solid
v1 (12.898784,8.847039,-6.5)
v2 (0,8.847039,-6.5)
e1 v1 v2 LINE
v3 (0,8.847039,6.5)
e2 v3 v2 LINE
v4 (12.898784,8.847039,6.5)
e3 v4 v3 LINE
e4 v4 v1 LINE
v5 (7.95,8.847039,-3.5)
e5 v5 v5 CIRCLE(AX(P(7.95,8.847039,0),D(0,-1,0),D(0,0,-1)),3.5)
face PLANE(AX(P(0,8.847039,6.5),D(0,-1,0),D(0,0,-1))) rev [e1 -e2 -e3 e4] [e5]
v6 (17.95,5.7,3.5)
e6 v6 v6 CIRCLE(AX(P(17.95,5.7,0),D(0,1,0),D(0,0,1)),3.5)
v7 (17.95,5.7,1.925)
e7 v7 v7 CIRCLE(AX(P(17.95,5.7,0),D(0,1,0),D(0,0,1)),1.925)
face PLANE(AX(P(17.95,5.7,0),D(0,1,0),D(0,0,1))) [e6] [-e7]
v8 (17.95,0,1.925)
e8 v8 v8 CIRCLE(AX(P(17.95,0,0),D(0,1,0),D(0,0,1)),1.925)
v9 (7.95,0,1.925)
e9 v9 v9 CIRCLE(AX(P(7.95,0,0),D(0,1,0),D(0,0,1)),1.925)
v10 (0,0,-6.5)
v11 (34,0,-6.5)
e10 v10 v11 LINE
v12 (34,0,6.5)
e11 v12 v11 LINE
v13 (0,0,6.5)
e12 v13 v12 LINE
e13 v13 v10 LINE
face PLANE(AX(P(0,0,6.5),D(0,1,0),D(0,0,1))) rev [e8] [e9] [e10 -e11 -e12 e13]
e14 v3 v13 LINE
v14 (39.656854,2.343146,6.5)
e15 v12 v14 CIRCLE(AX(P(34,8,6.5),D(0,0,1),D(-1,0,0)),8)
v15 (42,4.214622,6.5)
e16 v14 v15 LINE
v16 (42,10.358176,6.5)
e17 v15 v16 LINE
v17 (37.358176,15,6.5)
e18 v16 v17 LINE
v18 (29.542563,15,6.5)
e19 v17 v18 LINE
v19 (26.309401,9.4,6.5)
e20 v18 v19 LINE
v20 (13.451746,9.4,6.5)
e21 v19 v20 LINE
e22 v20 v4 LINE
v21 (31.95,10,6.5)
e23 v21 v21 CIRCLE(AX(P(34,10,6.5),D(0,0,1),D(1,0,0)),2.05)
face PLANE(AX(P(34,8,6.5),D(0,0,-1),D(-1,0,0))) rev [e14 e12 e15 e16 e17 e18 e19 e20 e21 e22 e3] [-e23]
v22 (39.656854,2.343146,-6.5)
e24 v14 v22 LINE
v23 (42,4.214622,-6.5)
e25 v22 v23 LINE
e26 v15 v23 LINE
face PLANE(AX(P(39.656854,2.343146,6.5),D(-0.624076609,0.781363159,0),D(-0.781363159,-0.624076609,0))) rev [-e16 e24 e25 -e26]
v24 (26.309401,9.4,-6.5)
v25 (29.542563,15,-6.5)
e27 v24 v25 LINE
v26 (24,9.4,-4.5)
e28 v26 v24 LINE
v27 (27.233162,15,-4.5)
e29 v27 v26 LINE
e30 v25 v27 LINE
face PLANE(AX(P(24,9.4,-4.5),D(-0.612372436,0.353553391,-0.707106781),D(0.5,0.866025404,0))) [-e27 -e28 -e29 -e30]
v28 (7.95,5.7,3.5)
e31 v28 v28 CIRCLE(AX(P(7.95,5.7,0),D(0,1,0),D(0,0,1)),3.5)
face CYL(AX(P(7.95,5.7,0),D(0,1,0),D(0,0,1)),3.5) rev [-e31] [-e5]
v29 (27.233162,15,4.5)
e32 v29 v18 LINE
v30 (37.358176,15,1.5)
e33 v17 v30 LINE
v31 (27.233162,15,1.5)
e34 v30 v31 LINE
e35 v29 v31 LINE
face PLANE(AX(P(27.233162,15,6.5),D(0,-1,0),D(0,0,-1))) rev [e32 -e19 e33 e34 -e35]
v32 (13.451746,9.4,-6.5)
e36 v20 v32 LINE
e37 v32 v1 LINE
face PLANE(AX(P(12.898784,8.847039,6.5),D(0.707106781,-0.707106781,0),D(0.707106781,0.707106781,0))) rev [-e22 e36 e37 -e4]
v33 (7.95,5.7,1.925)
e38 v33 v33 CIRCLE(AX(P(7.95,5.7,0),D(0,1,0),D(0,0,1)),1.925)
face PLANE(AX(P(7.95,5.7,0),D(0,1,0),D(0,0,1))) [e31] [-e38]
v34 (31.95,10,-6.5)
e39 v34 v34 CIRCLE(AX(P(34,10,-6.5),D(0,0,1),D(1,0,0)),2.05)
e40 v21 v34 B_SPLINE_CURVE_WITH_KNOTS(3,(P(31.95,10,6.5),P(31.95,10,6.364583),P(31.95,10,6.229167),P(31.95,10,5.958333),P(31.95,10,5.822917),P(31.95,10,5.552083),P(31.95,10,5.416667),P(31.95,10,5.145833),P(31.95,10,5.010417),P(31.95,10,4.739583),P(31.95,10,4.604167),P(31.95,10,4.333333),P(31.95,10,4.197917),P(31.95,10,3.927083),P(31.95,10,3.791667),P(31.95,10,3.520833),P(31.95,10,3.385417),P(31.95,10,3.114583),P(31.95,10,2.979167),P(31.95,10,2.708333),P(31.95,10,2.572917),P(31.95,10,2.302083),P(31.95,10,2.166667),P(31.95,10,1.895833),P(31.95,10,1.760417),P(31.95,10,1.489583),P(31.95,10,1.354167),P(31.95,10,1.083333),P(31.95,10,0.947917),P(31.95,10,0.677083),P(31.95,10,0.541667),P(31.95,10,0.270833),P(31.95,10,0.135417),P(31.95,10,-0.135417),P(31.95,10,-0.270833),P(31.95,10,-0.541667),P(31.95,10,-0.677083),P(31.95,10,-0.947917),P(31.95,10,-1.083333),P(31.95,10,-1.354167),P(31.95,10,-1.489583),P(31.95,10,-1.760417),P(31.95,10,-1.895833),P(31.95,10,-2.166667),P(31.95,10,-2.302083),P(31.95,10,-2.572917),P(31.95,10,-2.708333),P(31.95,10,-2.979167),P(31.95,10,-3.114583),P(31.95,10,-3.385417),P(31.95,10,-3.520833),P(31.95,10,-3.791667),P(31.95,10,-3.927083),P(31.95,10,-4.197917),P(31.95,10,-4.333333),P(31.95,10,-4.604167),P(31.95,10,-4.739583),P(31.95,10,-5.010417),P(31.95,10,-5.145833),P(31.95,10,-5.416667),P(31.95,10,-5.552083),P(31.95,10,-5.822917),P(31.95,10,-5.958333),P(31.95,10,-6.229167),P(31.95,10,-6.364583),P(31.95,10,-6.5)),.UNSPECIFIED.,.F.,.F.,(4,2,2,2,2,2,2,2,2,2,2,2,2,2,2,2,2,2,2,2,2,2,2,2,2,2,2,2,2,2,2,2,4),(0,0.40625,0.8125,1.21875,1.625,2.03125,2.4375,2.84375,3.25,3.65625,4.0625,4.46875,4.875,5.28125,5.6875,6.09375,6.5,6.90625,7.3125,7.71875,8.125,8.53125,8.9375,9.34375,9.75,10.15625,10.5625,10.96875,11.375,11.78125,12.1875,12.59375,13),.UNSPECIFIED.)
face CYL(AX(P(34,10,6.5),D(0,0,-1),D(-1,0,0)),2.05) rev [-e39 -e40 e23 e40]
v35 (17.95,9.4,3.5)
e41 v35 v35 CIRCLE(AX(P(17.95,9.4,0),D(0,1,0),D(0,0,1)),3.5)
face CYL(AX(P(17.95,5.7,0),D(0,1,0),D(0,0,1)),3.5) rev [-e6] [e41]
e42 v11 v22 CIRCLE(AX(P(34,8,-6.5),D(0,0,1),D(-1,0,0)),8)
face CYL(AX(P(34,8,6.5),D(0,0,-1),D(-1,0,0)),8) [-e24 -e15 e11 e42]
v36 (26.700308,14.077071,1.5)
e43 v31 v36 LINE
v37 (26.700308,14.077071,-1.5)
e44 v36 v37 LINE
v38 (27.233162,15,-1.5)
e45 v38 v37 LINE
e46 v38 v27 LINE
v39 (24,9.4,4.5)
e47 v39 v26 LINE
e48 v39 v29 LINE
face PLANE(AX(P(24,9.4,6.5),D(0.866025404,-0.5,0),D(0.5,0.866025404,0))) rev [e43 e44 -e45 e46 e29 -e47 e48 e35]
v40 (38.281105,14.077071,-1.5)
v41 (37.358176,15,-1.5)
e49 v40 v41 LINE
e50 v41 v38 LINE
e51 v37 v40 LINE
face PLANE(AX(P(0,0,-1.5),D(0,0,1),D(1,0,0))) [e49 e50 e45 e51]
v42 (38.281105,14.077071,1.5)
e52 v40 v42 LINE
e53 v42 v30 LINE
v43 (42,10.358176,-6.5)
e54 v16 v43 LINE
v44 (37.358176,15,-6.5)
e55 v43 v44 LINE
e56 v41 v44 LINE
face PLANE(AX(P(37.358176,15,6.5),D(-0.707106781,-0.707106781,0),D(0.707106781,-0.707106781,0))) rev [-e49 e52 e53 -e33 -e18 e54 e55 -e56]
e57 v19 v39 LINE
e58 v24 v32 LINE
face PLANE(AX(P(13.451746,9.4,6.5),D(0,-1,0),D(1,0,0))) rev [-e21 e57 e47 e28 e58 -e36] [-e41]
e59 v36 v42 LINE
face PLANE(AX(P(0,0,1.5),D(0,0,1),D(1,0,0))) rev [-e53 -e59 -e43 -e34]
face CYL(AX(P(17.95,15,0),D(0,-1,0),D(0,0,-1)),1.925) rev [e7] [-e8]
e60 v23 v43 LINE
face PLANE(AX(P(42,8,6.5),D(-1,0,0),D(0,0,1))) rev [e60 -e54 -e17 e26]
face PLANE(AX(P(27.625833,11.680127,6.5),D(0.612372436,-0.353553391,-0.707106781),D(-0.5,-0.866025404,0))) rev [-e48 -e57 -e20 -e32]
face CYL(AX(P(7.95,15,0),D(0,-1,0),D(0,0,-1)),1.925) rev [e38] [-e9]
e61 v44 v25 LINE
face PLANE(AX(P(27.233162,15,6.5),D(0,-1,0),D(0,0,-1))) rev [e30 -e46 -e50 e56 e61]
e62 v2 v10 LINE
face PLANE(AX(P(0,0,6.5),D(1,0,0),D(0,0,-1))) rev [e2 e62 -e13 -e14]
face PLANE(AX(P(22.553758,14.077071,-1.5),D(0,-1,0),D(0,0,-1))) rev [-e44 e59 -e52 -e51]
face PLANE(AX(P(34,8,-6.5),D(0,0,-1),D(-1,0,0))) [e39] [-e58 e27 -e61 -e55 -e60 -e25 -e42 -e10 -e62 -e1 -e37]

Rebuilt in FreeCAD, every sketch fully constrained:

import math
import FreeCAD as App
import Part
import Sketcher
from FreeCAD import Vector
Q = App.Units.Quantity


def edges_at(feature, points):
    """Names of the edges that pass closest to the given points."""
    edges = feature.Shape.Edges
    near = lambda p: min(range(len(edges)), key=lambda i: edges[i].distToShape(Part.Vertex(*p))[0])
    return sorted({f"Edge{near(p) + 1}" for p in points})

doc = App.newDocument("Part")
body = doc.addObject("PartDesign::Body", "Body")

sketch1 = doc.addObject("Sketcher::SketchObject", "Sketch")
body.addObject(sketch1)
sketch1.AttachmentSupport = (doc.XY_Plane, [""])
sketch1.MapMode = "FlatFace"
sketch1.addGeometry(Part.LineSegment(Vector(27.2, 15, 0), Vector(24, 9.4, 0)), False)
sketch1.addGeometry(Part.LineSegment(Vector(24, 9.4, 0), Vector(13.5, 9.4, 0)), False)
sketch1.addGeometry(Part.LineSegment(Vector(13.5, 9.4, 0), Vector(12.9, 8.8, 0)), False)
sketch1.addGeometry(Part.LineSegment(Vector(12.9, 8.8, 0), Vector(0, 8.8, 0)), False)
sketch1.addGeometry(Part.LineSegment(Vector(0, 8.8, 0), Vector(0, 0, 0)), False)
sketch1.addGeometry(Part.LineSegment(Vector(0, 0, 0), Vector(34, 0, 0)), False)
sketch1.addGeometry(Part.ArcOfCircle(Part.Circle(Vector(34, 8, 0), Vector(0, 0, 1), 8), math.radians(-90), math.radians(-45)), False)
sketch1.addGeometry(Part.LineSegment(Vector(39.7, 2.3, 0), Vector(42, 4.2, 0)), False)
sketch1.addGeometry(Part.LineSegment(Vector(42, 4.2, 0), Vector(42, 10.4, 0)), False)
sketch1.addGeometry(Part.LineSegment(Vector(42, 10.4, 0), Vector(37.4, 15, 0)), False)
sketch1.addGeometry(Part.LineSegment(Vector(37.4, 15, 0), Vector(27.2, 15, 0)), False)
sketch1.addGeometry(Part.Circle(Vector(34, 10, 0), Vector(0, 0, 1), 2), False)
sketch1.addConstraint(Sketcher.Constraint("Coincident", 0, 2, 1, 1))
sketch1.addConstraint(Sketcher.Constraint("Coincident", 1, 2, 2, 1))
sketch1.addConstraint(Sketcher.Constraint("Coincident", 2, 2, 3, 1))
sketch1.addConstraint(Sketcher.Constraint("Coincident", 3, 2, 4, 1))
sketch1.addConstraint(Sketcher.Constraint("Coincident", 4, 2, 5, 1))
sketch1.addConstraint(Sketcher.Constraint("Tangent", 5, 2, 6, 1))
sketch1.addConstraint(Sketcher.Constraint("Coincident", 6, 2, 7, 1))
sketch1.addConstraint(Sketcher.Constraint("Coincident", 7, 2, 8, 1))
sketch1.addConstraint(Sketcher.Constraint("Coincident", 8, 2, 9, 1))
sketch1.addConstraint(Sketcher.Constraint("Coincident", 9, 2, 10, 1))
sketch1.addConstraint(Sketcher.Constraint("Coincident", 10, 2, 0, 1))
sketch1.addConstraint(Sketcher.Constraint("Horizontal", 1))
sketch1.addConstraint(Sketcher.Constraint("Horizontal", 3))
sketch1.addConstraint(Sketcher.Constraint("Vertical", 4))
sketch1.addConstraint(Sketcher.Constraint("Horizontal", 5))
sketch1.addConstraint(Sketcher.Constraint("Vertical", 8))
sketch1.addConstraint(Sketcher.Constraint("Horizontal", 10))
sketch1.addConstraint(Sketcher.Constraint("Coincident", 4, 2, -1, 1))
sketch1.addConstraint(Sketcher.Constraint("Perpendicular", 2, 9))
sketch1.addConstraint(Sketcher.Constraint("Vertical", 6, 3, 11, 3))
sketch1.addConstraint(Sketcher.Constraint("Radius", 6, 8.0))
sketch1.addConstraint(Sketcher.Constraint("Diameter", 11, 4.1))
sketch1.addConstraint(Sketcher.Constraint("DistanceX", 5, 1, 5, 2, 34.0))
sketch1.addConstraint(Sketcher.Constraint("Angle", 0, Q("-120 deg")))
sketch1.addConstraint(Sketcher.Constraint("Angle", 2, Q("-135 deg")))
sketch1.addConstraint(Sketcher.Constraint("DistanceY", -1, 1, 11, 3, 10.0))
sketch1.addConstraint(Sketcher.Constraint("DistanceX", -1, 1, 0, 2, 24.0))
sketch1.addConstraint(Sketcher.Constraint("DistanceX", -1, 1, 7, 2, 42.0))
sketch1.addConstraint(Sketcher.Constraint("DistanceY", -1, 1, 9, 2, 15.0))
sketch1.addConstraint(Sketcher.Constraint("DistanceY", -1, 1, 0, 2, 9.4))
sketch1.addConstraint(Sketcher.Constraint("DistanceY", 4, 2, 4, 1, 8.847039))
sketch1.addConstraint(Sketcher.Constraint("Distance", 9, 6.564531))
sketch1.addConstraint(Sketcher.Constraint("DistanceX", 1, 2, 1, 1, 10.548254))
sketch1.addConstraint(Sketcher.Constraint("DistanceY", 8, 1, 8, 2, 6.143554))
sketch1.addConstraint(Sketcher.Constraint("DistanceX", 1, 2, 6, 2, 26.205109))
pad1 = doc.addObject("PartDesign::Pad", "Pad")
body.addObject(pad1)
pad1.Profile = sketch1
pad1.Length = 13
pad1.Midplane = True

sketch2 = doc.addObject("Sketcher::SketchObject", "Sketch001")
body.addObject(sketch2)
sketch2.AttachmentSupport = (doc.XZ_Plane, [""])
sketch2.MapMode = "FlatFace"
sketch2.addGeometry(Part.Circle(Vector(8, 0, 0), Vector(0, 0, 1), 1.9), False)
sketch2.addGeometry(Part.Circle(Vector(17.9, 0, 0), Vector(0, 0, 1), 1.9), False)
sketch2.addConstraint(Sketcher.Constraint("Equal", 0, 1))
sketch2.addConstraint(Sketcher.Constraint("PointOnObject", 0, 3, -1))
sketch2.addConstraint(Sketcher.Constraint("PointOnObject", 1, 3, -1))
sketch2.addConstraint(Sketcher.Constraint("Diameter", 0, 3.85))
sketch2.addConstraint(Sketcher.Constraint("DistanceX", 0, 3, 1, 3, 10.0))
sketch2.addConstraint(Sketcher.Constraint("DistanceX", -1, 1, 0, 3, 7.95))
pocket1 = doc.addObject("PartDesign::Pocket", "Pocket")
body.addObject(pocket1)
pocket1.Profile = sketch2
pocket1.Type = "ThroughAll"

sketch3 = doc.addObject("Sketcher::SketchObject", "Sketch002")
body.addObject(sketch3)
sketch3.AttachmentSupport = (doc.XZ_Plane, [""])
sketch3.MapMode = "FlatFace"
sketch3.AttachmentOffset = App.Placement(Vector(0, 0, -9.4), App.Rotation())
sketch3.addGeometry(Part.Circle(Vector(8, 0, 0), Vector(0, 0, 1), 3.5), False)
sketch3.addGeometry(Part.Circle(Vector(17.9, 0, 0), Vector(0, 0, 1), 3.5), False)
sketch3.addConstraint(Sketcher.Constraint("Equal", 0, 1))
sketch3.addConstraint(Sketcher.Constraint("PointOnObject", 0, 3, -1))
sketch3.addConstraint(Sketcher.Constraint("PointOnObject", 1, 3, -1))
sketch3.addConstraint(Sketcher.Constraint("Diameter", 0, 7.0))
sketch3.addConstraint(Sketcher.Constraint("DistanceX", 0, 3, 1, 3, 10.0))
sketch3.addConstraint(Sketcher.Constraint("DistanceX", -1, 1, 0, 3, 7.95))
pocket2 = doc.addObject("PartDesign::Pocket", "Pocket001")
body.addObject(pocket2)
pocket2.Profile = sketch3
pocket2.Length = 3.7
pocket2.Reversed = True

sketch4 = doc.addObject("Sketcher::SketchObject", "Sketch003")
body.addObject(sketch4)
sketch4.AttachmentSupport = (doc.XY_Plane, [""])
sketch4.MapMode = "FlatFace"
sketch4.addGeometry(Part.LineSegment(Vector(22.6, 18.3, 0), Vector(22.6, 14.1, 0)), False)
sketch4.addGeometry(Part.LineSegment(Vector(22.6, 14.1, 0), Vector(40.9, 14.1, 0)), False)
sketch4.addGeometry(Part.LineSegment(Vector(40.9, 14.1, 0), Vector(40.9, 18.3, 0)), False)
sketch4.addGeometry(Part.LineSegment(Vector(40.9, 18.3, 0), Vector(22.6, 18.3, 0)), False)
sketch4.addConstraint(Sketcher.Constraint("Coincident", 0, 2, 1, 1))
sketch4.addConstraint(Sketcher.Constraint("Coincident", 1, 2, 2, 1))
sketch4.addConstraint(Sketcher.Constraint("Coincident", 2, 2, 3, 1))
sketch4.addConstraint(Sketcher.Constraint("Coincident", 3, 2, 0, 1))
sketch4.addConstraint(Sketcher.Constraint("Vertical", 0))
sketch4.addConstraint(Sketcher.Constraint("Horizontal", 1))
sketch4.addConstraint(Sketcher.Constraint("Vertical", 2))
sketch4.addConstraint(Sketcher.Constraint("Horizontal", 3))
sketch4.addConstraint(Sketcher.Constraint("DistanceY", 0, 2, 0, 1, 4.198551))
sketch4.addConstraint(Sketcher.Constraint("DistanceX", 1, 1, 1, 2, 18.309147))
sketch4.addConstraint(Sketcher.Constraint("DistanceX", -1, 1, 0, 2, 22.553758))
sketch4.addConstraint(Sketcher.Constraint("DistanceY", -1, 1, 0, 2, 14.077071))
pocket3 = doc.addObject("PartDesign::Pocket", "Pocket002")
body.addObject(pocket3)
pocket3.Profile = sketch4
pocket3.Length = 3
pocket3.Midplane = True
doc.recompute()

chamfer = doc.addObject("PartDesign::Chamfer", "Chamfer")
body.addObject(chamfer)
chamfer.Base = (pocket3, edges_at(pocket3, [(25.617, 12.2, -6.5), (25.617, 12.2, 6.5)]))
chamfer.Size = 2

doc.recompute()
